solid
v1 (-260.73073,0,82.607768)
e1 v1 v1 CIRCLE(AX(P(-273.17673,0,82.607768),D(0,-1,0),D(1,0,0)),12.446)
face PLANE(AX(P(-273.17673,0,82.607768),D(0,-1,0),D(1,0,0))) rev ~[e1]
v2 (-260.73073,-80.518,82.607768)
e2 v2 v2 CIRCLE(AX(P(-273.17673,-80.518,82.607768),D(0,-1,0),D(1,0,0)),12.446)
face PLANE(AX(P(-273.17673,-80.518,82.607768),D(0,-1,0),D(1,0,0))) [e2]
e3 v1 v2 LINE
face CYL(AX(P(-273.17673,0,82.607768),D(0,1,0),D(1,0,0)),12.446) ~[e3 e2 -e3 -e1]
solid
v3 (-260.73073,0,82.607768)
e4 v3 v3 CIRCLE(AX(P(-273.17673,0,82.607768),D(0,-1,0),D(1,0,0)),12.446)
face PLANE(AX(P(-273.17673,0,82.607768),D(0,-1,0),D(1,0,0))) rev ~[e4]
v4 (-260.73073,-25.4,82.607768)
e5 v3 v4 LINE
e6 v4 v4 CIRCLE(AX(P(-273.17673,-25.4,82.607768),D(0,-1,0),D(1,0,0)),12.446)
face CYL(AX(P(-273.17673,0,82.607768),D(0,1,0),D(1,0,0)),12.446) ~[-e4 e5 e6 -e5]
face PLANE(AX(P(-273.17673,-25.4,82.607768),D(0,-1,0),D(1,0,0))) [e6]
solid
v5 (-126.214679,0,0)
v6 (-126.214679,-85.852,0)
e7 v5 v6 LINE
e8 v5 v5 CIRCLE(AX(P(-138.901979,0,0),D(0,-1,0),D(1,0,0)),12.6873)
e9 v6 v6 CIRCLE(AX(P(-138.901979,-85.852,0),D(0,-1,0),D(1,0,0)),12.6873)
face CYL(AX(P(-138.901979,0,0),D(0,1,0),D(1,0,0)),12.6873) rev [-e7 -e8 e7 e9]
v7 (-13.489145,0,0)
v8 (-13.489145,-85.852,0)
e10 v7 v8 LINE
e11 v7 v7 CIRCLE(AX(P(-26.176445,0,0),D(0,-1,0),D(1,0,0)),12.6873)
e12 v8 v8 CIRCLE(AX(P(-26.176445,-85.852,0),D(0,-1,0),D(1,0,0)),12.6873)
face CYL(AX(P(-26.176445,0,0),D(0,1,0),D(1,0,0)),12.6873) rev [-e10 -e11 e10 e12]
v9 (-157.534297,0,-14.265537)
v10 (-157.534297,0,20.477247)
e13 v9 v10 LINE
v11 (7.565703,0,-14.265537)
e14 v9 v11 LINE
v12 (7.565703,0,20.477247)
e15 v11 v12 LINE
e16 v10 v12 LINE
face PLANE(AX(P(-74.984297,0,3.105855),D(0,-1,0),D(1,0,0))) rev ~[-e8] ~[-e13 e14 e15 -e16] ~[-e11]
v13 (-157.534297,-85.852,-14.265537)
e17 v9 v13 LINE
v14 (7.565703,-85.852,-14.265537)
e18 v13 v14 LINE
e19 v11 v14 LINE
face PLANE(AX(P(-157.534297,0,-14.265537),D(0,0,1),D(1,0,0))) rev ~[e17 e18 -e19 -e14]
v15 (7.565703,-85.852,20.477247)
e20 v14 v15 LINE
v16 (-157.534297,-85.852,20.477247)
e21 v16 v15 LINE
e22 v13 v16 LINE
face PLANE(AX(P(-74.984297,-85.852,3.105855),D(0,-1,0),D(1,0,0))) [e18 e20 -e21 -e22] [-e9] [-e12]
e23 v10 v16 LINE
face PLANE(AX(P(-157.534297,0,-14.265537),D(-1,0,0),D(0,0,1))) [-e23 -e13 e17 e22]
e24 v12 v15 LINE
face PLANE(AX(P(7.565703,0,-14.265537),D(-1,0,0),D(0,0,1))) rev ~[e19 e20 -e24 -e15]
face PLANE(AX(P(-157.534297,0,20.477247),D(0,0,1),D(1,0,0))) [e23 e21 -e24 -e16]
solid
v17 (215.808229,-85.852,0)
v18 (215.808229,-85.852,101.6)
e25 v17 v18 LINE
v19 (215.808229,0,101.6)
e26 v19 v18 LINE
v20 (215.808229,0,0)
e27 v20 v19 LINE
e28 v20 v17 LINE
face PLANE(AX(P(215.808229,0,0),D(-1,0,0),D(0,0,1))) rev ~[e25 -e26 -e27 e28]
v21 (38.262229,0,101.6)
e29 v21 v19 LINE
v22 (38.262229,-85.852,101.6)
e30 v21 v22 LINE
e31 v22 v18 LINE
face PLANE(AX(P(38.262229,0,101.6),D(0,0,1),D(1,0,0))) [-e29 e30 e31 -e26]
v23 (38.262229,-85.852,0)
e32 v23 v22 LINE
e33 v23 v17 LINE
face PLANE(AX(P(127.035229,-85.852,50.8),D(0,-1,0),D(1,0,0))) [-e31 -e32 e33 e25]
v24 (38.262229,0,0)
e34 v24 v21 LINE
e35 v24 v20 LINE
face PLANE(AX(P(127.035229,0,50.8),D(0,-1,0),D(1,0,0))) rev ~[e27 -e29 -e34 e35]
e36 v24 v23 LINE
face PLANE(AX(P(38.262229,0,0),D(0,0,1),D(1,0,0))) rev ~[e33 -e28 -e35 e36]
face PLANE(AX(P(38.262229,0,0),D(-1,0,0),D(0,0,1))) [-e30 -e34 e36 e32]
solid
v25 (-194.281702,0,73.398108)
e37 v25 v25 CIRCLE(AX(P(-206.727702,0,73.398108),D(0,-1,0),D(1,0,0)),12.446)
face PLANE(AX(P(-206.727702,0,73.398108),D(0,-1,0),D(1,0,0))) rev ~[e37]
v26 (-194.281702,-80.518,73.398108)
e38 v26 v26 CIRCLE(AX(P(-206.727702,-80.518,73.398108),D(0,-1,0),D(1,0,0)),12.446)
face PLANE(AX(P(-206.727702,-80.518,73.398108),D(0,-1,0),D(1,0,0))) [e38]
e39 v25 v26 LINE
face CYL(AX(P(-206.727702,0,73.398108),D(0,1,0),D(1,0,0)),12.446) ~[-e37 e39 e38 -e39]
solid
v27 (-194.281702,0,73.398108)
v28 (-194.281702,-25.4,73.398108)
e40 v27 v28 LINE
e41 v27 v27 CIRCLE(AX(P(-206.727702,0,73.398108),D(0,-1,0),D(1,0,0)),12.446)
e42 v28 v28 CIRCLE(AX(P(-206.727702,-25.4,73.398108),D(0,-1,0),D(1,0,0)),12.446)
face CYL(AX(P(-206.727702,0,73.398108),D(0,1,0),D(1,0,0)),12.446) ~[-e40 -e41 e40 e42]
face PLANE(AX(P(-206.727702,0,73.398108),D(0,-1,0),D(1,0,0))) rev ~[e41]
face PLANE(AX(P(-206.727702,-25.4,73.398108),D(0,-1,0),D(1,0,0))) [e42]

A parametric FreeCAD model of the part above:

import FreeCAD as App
import Part
import Sketcher

V = App.Vector
Q = App.Units.Quantity

doc = App.newDocument("Part")
body = doc.addObject("PartDesign::Body", "Body")
body.AllowCompound = True

sketch1 = body.newObject("Sketcher::SketchObject", "Sketch")
sketch1.AttachmentSupport = (doc.getObject("XZ_Plane"), [""])
sketch1.MapMode = "FlatFace"
sketch1.addGeometry(Part.LineSegment(V(-158, 20, 0), V(-158, -14, 0)), False)
sketch1.addGeometry(Part.LineSegment(V(-158, -14, 0), V(8, -14, 0)), False)
sketch1.addGeometry(Part.LineSegment(V(8, -14, 0), V(8, 20, 0)), False)
sketch1.addGeometry(Part.LineSegment(V(8, 20, 0), V(-158, 20, 0)), False)
sketch1.addGeometry(Part.Circle(V(-139, 0, 0), V(0, 0, 1), 13), False)
sketch1.addGeometry(Part.Circle(V(-26, 0, 0), V(0, 0, 1), 13), False)
sketch1.addGeometry(Part.LineSegment(V(38, 102, 0), V(38, 0, 0)), False)
sketch1.addGeometry(Part.LineSegment(V(38, 0, 0), V(216, 0, 0)), False)
sketch1.addGeometry(Part.LineSegment(V(216, 0, 0), V(216, 102, 0)), False)
sketch1.addGeometry(Part.LineSegment(V(216, 102, 0), V(38, 102, 0)), False)
sketch1.addConstraint(Sketcher.Constraint("Coincident", 0, 2, 1, 1))
sketch1.addConstraint(Sketcher.Constraint("Coincident", 1, 2, 2, 1))
sketch1.addConstraint(Sketcher.Constraint("Coincident", 2, 2, 3, 1))
sketch1.addConstraint(Sketcher.Constraint("Coincident", 3, 2, 0, 1))
sketch1.addConstraint(Sketcher.Constraint("Coincident", 6, 2, 7, 1))
sketch1.addConstraint(Sketcher.Constraint("Coincident", 7, 2, 8, 1))
sketch1.addConstraint(Sketcher.Constraint("Coincident", 8, 2, 9, 1))
sketch1.addConstraint(Sketcher.Constraint("Coincident", 9, 2, 6, 1))
sketch1.addConstraint(Sketcher.Constraint("Vertical", 0))
sketch1.addConstraint(Sketcher.Constraint("Horizontal", 1))
sketch1.addConstraint(Sketcher.Constraint("Vertical", 2))
sketch1.addConstraint(Sketcher.Constraint("Horizontal", 3))
sketch1.addConstraint(Sketcher.Constraint("Vertical", 6))
sketch1.addConstraint(Sketcher.Constraint("Horizontal", 7))
sketch1.addConstraint(Sketcher.Constraint("Vertical", 8))
sketch1.addConstraint(Sketcher.Constraint("Horizontal", 9))
sketch1.addConstraint(Sketcher.Constraint("Equal", 4, 5))
sketch1.addConstraint(Sketcher.Constraint("PointOnObject", 4, 3, -1))
sketch1.addConstraint(Sketcher.Constraint("PointOnObject", 5, 3, -1))
sketch1.addConstraint(Sketcher.Constraint("PointOnObject", 6, 2, -1))
sketch1.addConstraint(Sketcher.Constraint("DistanceY", 6, 2, 6, 1, Q("4 in")))
sketch1.addConstraint(Sketcher.Constraint("Diameter", 4, Q("0.999 in")))
sketch1.addConstraint(Sketcher.Constraint("DistanceX", 1, 1, 1, 2, Q("6.5 in")))
sketch1.addConstraint(Sketcher.Constraint("DistanceX", 7, 1, 7, 2, Q("6.99 in")))
sketch1.addConstraint(Sketcher.Constraint("DistanceY", 0, 2, 0, 1, 34.742784))
sketch1.addConstraint(Sketcher.Constraint("DistanceX", 4, 3, -1, 1, 138.901979))
sketch1.addConstraint(Sketcher.Constraint("DistanceX", -1, 1, 6, 2, 38.262229))
sketch1.addConstraint(Sketcher.Constraint("DistanceX", 0, 2, 5, 3, 131.357852))
sketch1.addConstraint(Sketcher.Constraint("DistanceX", 5, 3, -1, 1, 26.176445))
sketch1.addConstraint(Sketcher.Constraint("DistanceY", 0, 2, -1, 1, 14.265537))
pad1 = body.newObject("PartDesign::Pad", "Pad")
pad1.Profile = sketch1
pad1.Length = Q("3.38 in")
body2 = doc.addObject("PartDesign::Body", "Body001")
body2.AllowCompound = True

sketch2 = body2.newObject("Sketcher::SketchObject", "Sketch001")
sketch2.AttachmentSupport = (doc.getObject("XZ_Plane001"), [""])
sketch2.MapMode = "FlatFace"
sketch2.addGeometry(Part.Circle(V(-207, 73, 0), V(0, 0, 1), 12), False)
sketch2.addGeometry(Part.Circle(V(-273, 83, 0), V(0, 0, 1), 12), False)
sketch2.addConstraint(Sketcher.Constraint("Equal", 0, 1))
sketch2.addConstraint(Sketcher.Constraint("Diameter", 0, Q("0.98 in")))
sketch2.addConstraint(Sketcher.Constraint("DistanceX", 0, 3, -1, 1, 206.727702))
sketch2.addConstraint(Sketcher.Constraint("DistanceX", 1, 3, -1, 1, 273.17673))
sketch2.addConstraint(Sketcher.Constraint("DistanceY", 0, 3, 1, 3, 9.20966))
sketch2.addConstraint(Sketcher.Constraint("DistanceY", -1, 1, 0, 3, 73.398108))
pad2 = body2.newObject("PartDesign::Pad", "Pad001")
pad2.Profile = sketch2
pad2.Length = Q("3.17 in")
body3 = doc.addObject("PartDesign::Body", "Body002")
body3.AllowCompound = True

sketch3 = body3.newObject("Sketcher::SketchObject", "Sketch002")
sketch3.AttachmentSupport = (doc.getObject("XZ_Plane002"), [""])
sketch3.MapMode = "FlatFace"
sketch3.addGeometry(Part.Circle(V(-207, 73, 0), V(0, 0, 1), 12), False)
sketch3.addGeometry(Part.Circle(V(-273, 83, 0), V(0, 0, 1), 12), False)
sketch3.addConstraint(Sketcher.Constraint("Equal", 0, 1))
sketch3.addConstraint(Sketcher.Constraint("Diameter", 0, Q("0.98 in")))
sketch3.addConstraint(Sketcher.Constraint("DistanceX", 0, 3, -1, 1, 206.727702))
sketch3.addConstraint(Sketcher.Constraint("DistanceX", 1, 3, -1, 1, 273.17673))
sketch3.addConstraint(Sketcher.Constraint("DistanceY", 0, 3, 1, 3, 9.20966))
sketch3.addConstraint(Sketcher.Constraint("DistanceY", -1, 1, 0, 3, 73.398108))
pad3 = body3.newObject("PartDesign::Pad", "Pad002")
pad3.Profile = sketch3
pad3.Length = Q("1 in")

doc.recompute()
